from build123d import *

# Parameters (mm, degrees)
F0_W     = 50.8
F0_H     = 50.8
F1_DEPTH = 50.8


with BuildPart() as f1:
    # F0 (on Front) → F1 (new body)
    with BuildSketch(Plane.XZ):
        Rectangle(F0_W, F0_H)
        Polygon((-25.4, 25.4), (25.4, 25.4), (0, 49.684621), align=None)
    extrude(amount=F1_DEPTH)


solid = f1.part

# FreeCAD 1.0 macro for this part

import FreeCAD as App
import Part
import Sketcher
from FreeCAD import Vector
Q = App.Units.Quantity


def add_polygon(sketch, points):
    """Adds a closed chain of lines whose ends are joined by coincident constraints."""
    first, n = sketch.GeometryCount, len(points)
    for a, b in zip(points, points[1:] + points[:1]):
        sketch.addGeometry(Part.LineSegment(App.Vector(*a, 0), App.Vector(*b, 0)), False)
    for i in range(n):
        sketch.addConstraint(Sketcher.Constraint("Coincident", first + i, 2, first + (i + 1) % n, 1))

doc = App.newDocument("Part")
body = doc.addObject("PartDesign::Body", "Body")

# Sketch on XZ plane
sketch1 = body.newObject("Sketcher::SketchObject", "Sketch")
sketch1.AttachmentSupport = (doc.getObject("XZ_Plane"), [""])
sketch1.MapMode = "FlatFace"
add_polygon(sketch1, [(-25, 25), (-25, -25), (25, -25), (25, 25), (0, 50)])  # lines 0-4
sketch1.addConstraint([
    Sketcher.Constraint("Vertical", 0),
    Sketcher.Constraint("Horizontal", 1),
    Sketcher.Constraint("Vertical", 2),
    Sketcher.Constraint("Symmetric", 0, 2, 2, 2, -1, 1),
    Sketcher.Constraint("PointOnObject", 3, 2, -2),
    Sketcher.Constraint("Horizontal", 2, 2, 4, 2),
    Sketcher.Constraint("Equal", 1, 0),
    Sketcher.Constraint("DistanceX", 1, 1, 1, 2, Q("2 in")),
    Sketcher.Constraint("DistanceY", -1, 1, 3, 2, 49.684621),
])
pad1 = body.newObject("PartDesign::Pad", "Pad")
pad1.Profile = sketch1
pad1.Length = Q("2 in")

doc.recompute()
